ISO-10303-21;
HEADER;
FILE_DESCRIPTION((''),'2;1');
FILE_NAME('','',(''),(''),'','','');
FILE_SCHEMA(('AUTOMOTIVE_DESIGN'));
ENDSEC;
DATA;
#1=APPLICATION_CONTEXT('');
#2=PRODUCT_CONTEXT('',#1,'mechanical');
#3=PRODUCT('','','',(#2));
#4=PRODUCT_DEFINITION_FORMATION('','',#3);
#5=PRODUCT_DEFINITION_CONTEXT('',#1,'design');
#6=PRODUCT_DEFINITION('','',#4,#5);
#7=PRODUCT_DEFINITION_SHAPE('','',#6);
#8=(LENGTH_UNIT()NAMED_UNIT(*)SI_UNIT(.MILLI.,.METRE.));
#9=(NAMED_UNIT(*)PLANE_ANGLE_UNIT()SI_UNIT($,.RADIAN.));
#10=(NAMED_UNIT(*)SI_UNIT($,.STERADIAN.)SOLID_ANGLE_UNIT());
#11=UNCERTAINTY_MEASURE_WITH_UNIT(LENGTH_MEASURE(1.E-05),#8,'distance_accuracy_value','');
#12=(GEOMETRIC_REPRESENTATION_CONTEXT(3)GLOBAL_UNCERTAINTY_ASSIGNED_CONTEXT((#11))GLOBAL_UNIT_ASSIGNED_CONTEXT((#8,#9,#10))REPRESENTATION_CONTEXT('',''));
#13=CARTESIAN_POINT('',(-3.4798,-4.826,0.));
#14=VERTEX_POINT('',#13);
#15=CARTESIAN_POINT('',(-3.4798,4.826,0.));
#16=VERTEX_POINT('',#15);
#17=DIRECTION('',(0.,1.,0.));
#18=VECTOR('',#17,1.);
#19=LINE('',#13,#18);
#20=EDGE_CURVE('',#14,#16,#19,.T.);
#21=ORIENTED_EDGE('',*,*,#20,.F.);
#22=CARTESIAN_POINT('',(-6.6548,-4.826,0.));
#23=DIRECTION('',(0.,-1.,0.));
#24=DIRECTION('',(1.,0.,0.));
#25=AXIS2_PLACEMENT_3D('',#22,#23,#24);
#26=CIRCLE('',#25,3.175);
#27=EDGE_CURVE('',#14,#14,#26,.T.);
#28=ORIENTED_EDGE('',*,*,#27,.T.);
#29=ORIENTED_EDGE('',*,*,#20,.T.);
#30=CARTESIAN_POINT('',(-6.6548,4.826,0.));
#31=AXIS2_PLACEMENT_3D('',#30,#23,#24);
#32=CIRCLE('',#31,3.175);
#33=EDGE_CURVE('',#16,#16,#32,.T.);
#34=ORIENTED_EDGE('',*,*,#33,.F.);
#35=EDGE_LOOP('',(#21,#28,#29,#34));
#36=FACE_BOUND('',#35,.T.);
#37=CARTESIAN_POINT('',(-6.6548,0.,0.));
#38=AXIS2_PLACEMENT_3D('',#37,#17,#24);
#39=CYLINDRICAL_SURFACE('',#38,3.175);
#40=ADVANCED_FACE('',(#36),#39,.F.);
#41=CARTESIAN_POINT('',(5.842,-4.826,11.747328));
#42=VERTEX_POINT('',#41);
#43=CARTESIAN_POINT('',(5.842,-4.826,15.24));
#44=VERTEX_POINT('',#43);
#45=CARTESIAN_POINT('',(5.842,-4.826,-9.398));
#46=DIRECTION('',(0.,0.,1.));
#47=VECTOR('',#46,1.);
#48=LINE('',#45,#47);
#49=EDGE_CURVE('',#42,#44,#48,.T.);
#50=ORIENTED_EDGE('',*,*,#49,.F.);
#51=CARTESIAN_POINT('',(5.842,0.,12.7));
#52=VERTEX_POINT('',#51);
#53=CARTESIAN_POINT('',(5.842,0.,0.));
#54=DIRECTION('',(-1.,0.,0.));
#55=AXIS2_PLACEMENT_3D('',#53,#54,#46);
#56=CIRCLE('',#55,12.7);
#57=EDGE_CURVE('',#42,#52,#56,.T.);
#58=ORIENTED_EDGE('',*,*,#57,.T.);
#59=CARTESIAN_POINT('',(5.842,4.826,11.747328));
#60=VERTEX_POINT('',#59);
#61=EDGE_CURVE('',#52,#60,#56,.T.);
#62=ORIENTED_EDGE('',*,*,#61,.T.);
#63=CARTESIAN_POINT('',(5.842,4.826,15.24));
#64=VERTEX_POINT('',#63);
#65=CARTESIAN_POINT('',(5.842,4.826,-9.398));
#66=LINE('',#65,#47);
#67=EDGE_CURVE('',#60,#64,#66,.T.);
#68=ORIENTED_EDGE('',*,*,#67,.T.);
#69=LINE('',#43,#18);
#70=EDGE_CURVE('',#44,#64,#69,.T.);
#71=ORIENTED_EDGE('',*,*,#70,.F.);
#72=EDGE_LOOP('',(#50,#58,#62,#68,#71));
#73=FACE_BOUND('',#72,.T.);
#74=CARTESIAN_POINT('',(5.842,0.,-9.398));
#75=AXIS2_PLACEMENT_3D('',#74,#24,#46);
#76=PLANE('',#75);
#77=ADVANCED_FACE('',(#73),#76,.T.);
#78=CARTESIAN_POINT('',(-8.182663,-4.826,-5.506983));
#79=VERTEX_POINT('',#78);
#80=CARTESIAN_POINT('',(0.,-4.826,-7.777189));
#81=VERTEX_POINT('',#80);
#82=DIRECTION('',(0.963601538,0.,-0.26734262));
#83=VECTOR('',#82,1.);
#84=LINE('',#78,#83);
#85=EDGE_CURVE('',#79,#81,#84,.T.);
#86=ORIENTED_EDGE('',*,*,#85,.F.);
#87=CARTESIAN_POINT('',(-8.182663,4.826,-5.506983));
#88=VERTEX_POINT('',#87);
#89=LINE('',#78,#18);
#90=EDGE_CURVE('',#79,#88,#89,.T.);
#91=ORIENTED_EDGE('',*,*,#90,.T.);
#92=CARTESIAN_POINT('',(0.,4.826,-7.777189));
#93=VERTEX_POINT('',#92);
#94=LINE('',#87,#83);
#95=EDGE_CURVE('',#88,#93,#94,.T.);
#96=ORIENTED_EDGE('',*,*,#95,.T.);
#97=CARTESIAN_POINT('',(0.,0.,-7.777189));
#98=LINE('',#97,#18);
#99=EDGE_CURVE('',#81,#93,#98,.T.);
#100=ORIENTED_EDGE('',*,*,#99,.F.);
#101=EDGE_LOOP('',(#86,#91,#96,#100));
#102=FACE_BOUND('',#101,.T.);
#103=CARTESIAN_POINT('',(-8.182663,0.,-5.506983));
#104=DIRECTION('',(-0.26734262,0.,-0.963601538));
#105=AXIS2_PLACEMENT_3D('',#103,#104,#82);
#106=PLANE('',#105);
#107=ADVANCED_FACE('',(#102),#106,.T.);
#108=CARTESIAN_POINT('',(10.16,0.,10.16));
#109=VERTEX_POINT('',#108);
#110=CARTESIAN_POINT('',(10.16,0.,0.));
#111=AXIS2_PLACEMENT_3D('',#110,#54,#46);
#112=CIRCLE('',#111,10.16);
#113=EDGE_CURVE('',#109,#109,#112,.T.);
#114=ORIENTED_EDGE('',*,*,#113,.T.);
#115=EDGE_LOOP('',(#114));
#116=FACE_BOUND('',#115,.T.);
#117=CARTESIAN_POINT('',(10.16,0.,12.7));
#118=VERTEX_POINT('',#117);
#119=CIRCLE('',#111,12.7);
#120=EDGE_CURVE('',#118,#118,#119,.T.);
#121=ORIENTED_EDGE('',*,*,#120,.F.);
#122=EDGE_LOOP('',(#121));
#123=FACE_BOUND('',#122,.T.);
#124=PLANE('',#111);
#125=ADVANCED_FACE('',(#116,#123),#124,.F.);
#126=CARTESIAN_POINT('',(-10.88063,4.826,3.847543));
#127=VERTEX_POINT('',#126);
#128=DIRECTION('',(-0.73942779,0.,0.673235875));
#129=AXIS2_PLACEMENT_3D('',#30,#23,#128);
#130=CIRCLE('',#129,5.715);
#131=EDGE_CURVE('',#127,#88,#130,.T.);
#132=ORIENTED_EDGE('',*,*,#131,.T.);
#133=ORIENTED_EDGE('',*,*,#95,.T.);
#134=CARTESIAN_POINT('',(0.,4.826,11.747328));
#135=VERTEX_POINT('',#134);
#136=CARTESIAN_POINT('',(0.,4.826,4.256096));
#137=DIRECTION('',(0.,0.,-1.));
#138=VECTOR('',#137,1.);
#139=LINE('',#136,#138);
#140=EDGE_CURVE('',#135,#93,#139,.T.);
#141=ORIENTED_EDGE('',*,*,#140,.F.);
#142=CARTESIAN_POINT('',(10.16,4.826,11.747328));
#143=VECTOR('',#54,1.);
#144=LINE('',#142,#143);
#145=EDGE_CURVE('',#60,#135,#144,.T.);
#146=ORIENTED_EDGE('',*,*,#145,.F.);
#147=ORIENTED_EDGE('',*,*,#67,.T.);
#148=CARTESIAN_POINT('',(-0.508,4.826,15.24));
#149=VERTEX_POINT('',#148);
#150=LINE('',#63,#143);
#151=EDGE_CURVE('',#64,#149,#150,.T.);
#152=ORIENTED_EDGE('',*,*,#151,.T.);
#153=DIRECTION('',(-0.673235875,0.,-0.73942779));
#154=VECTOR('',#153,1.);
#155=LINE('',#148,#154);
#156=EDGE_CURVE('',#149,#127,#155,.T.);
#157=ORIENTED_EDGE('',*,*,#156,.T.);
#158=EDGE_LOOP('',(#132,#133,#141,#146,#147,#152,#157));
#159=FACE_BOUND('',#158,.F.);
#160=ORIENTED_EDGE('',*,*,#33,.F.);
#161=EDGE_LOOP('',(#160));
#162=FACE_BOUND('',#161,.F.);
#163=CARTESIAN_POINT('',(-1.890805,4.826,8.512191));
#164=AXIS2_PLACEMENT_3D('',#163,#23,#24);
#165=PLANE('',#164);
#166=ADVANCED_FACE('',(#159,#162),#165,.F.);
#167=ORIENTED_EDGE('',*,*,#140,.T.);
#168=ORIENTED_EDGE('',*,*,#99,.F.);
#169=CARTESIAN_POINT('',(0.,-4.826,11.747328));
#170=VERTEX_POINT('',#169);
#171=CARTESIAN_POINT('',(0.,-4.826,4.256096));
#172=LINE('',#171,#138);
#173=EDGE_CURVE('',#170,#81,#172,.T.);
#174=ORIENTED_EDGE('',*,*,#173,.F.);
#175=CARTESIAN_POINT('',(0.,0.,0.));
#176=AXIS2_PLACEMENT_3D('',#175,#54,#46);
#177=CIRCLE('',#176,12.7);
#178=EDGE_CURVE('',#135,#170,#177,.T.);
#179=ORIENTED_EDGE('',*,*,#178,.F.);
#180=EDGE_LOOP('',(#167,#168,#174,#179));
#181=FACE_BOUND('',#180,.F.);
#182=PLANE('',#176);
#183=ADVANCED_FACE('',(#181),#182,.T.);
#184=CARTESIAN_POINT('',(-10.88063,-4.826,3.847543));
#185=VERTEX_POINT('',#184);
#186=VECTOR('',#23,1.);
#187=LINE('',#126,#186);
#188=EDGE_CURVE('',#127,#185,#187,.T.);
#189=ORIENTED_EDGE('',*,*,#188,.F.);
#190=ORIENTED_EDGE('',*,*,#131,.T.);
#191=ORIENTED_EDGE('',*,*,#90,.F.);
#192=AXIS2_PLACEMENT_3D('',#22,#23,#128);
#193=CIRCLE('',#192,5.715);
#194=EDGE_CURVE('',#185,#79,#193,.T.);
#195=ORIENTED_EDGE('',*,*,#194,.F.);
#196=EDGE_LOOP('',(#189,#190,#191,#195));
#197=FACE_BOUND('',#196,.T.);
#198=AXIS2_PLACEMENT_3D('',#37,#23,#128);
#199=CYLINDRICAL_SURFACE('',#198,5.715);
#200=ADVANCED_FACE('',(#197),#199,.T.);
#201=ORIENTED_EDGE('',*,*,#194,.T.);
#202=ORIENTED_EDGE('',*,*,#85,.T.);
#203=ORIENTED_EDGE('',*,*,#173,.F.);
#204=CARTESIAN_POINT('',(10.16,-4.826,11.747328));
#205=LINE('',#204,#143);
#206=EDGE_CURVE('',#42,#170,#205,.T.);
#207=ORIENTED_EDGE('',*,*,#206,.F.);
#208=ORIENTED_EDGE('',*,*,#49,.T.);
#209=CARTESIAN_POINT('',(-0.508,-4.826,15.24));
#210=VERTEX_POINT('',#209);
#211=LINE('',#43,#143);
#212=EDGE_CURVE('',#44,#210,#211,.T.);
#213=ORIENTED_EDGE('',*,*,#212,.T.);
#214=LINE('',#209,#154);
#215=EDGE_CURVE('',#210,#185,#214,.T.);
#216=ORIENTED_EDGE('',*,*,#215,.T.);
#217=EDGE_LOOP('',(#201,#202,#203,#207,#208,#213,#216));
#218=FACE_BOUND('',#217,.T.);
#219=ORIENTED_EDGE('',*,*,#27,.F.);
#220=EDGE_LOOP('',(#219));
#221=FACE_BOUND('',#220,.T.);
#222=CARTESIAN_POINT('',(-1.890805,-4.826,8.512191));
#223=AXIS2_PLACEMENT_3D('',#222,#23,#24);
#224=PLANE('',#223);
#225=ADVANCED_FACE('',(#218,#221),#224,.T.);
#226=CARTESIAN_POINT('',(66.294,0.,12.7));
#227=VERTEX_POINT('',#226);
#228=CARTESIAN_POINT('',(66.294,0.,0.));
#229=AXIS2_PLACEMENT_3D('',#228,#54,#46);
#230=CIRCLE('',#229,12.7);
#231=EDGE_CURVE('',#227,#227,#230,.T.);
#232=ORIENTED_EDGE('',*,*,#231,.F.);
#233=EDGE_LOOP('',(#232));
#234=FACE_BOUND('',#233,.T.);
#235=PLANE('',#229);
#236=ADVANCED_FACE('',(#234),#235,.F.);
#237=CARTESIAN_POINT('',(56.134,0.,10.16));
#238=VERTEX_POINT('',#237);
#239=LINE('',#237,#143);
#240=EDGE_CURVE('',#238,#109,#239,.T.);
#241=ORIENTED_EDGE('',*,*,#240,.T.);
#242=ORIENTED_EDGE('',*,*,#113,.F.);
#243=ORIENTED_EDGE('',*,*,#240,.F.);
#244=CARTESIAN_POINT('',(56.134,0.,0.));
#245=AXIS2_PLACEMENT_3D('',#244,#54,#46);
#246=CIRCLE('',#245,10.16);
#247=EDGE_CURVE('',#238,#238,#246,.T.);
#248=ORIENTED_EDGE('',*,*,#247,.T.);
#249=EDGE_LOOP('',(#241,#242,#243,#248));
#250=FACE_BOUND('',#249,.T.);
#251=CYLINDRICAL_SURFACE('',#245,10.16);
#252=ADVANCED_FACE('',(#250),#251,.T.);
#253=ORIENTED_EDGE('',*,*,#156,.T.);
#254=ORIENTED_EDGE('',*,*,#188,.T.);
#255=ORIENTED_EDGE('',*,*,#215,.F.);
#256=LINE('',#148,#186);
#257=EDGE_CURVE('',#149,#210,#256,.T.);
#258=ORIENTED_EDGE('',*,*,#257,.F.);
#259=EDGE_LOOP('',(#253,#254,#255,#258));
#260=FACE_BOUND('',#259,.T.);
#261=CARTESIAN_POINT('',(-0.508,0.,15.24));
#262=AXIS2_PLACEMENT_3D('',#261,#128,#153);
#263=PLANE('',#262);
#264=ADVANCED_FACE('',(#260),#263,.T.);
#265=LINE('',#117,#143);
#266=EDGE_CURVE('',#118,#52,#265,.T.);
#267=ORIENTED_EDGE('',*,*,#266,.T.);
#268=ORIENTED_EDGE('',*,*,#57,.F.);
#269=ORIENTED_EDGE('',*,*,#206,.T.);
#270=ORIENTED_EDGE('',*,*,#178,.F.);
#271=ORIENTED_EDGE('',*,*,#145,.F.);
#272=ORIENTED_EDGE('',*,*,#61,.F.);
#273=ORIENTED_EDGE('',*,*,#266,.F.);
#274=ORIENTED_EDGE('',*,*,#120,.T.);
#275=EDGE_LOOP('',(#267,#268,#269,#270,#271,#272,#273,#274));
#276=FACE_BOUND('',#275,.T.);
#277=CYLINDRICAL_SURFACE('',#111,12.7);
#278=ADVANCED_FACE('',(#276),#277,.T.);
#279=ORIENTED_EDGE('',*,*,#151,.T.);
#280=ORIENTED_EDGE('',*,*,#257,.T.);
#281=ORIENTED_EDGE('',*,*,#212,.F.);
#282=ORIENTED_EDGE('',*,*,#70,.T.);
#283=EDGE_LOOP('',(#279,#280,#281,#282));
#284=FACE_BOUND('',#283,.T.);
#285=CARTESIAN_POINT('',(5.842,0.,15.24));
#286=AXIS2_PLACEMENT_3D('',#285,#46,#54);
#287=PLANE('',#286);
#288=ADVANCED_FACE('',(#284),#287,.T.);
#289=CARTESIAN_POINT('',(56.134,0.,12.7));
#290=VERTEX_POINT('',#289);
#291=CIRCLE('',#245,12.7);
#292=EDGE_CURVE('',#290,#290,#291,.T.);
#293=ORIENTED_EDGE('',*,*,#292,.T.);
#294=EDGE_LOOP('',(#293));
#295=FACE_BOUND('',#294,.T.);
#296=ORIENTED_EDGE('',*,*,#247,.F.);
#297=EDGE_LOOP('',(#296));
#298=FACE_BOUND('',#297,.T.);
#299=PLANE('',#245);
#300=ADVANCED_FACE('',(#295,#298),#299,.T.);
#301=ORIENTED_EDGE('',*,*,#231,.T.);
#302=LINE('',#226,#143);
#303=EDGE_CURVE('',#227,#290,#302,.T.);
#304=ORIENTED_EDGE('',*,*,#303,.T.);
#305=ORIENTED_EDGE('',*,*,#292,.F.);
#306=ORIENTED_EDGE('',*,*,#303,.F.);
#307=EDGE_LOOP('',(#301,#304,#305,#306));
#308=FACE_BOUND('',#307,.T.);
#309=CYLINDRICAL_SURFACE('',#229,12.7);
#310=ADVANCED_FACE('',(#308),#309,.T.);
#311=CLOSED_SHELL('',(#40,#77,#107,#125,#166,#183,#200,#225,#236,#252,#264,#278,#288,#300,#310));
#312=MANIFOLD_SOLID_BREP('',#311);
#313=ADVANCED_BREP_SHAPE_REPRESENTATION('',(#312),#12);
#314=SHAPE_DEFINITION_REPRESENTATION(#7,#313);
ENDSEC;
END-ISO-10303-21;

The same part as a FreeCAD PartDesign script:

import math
import FreeCAD as App
import Part
import Sketcher
from FreeCAD import Vector
Q = App.Units.Quantity

doc = App.newDocument("Part")
params = doc.addObject("Spreadsheet::Sheet", "Params")
for row, (alias, value) in enumerate([
    ("sketch1_width", "0.4 in"),
    ("sketch1_height", "0.5 in"),
    ("sketch1_height2", "0.1 in"),
    ("sketch1_width2", "1.81 in"),
    ("revolution_angle", "360 deg"),
    ("sketch2_diameter", "0.25 in"),
    ("sketch2_radius", "0.225 in"),
    ("sketch2_width", "0.25 in"),
    ("sketch2_height", "0.97 in"),
    ("pad1_length", "0.38 in"),
], start=1):
    params.set(f"A{row}", alias)
    params.set(f"B{row}", "=" + value)
    params.setAlias(f"B{row}", alias)

body = doc.addObject("PartDesign::Body", "Body")

sketch1 = body.newObject("Sketcher::SketchObject", "Sketch")
sketch1.AttachmentSupport = (doc.getObject("XZ_Plane"), [""])
sketch1.MapMode = "FlatFace"
sketch1.addGeometry([
    Part.LineSegment(Vector(66.3, 0, 0), Vector(66.3, 12.7, 0)),
    Part.LineSegment(Vector(66.3, 12.7, 0), Vector(56.1, 12.7, 0)),
    Part.LineSegment(Vector(56.1, 12.7, 0), Vector(56.1, 10.2, 0)),
    Part.LineSegment(Vector(56.1, 10.2, 0), Vector(10.2, 10.2, 0)),
    Part.LineSegment(Vector(10.2, 10.2, 0), Vector(10.2, 12.7, 0)),
    Part.LineSegment(Vector(10.2, 12.7, 0), Vector(0, 12.7, 0)),
    Part.LineSegment(Vector(0, 12.7, 0), Vector(0, 0, 0)),
    Part.LineSegment(Vector(0, 0, 0), Vector(66.3, 0, 0)),
], False)
sketch1.addConstraint([
    Sketcher.Constraint("Coincident", 0, 2, 1, 1),
    Sketcher.Constraint("Coincident", 1, 2, 2, 1),
    Sketcher.Constraint("Coincident", 2, 2, 3, 1),
    Sketcher.Constraint("Coincident", 3, 2, 4, 1),
    Sketcher.Constraint("Coincident", 4, 2, 5, 1),
    Sketcher.Constraint("Coincident", 5, 2, 6, 1),
    Sketcher.Constraint("Coincident", 6, 2, 7, 1),
    Sketcher.Constraint("Coincident", 7, 2, 0, 1),
    Sketcher.Constraint("Vertical", 0),
    Sketcher.Constraint("Horizontal", 1),
    Sketcher.Constraint("Vertical", 2),
    Sketcher.Constraint("Horizontal", 3),
    Sketcher.Constraint("Vertical", 4),
    Sketcher.Constraint("Horizontal", 5),
    Sketcher.Constraint("Vertical", 6),
    Sketcher.Constraint("Horizontal", 7),
    Sketcher.Constraint("Coincident", 6, 2, -1, 1),
    Sketcher.Constraint("Horizontal", 1, 2, 4, 2),
    Sketcher.Constraint("Equal", 1, 5),
    Sketcher.Constraint("DistanceX", 1, 2, 1, 1, Q("0.4 in")),
    Sketcher.Constraint("DistanceY", 0, 1, 0, 2, Q("0.5 in")),
    Sketcher.Constraint("DistanceY", 2, 2, 2, 1, Q("0.1 in")),
    Sketcher.Constraint("DistanceX", 3, 2, 3, 1, Q("1.81 in")),
])
sketch1.setExpression("Constraints[19]", "Params.sketch1_width")
sketch1.setExpression("Constraints[20]", "Params.sketch1_height")
sketch1.setExpression("Constraints[21]", "Params.sketch1_height2")
sketch1.setExpression("Constraints[22]", "Params.sketch1_width2")
revolution = body.newObject("PartDesign::Revolution", "Revolution")
revolution.Profile = sketch1
revolution.ReferenceAxis = (sketch1, ["H_Axis"])
revolution.setExpression("Angle", "Params.revolution_angle")

sketch2 = body.newObject("Sketcher::SketchObject", "Sketch001")
sketch2.AttachmentSupport = (doc.getObject("XZ_Plane"), [""])
sketch2.MapMode = "FlatFace"
sketch2.addGeometry([
    Part.LineSegment(Vector(5.8, 15.2, 0), Vector(-0.5, 15.2, 0)),
    Part.LineSegment(Vector(-0.5, 15.2, 0), Vector(-10.9, 3.8, 0)),
    Part.ArcOfCircle(Part.Circle(Vector(-6.7, 0, 0), Vector(0, 0, 1), 5.7), math.radians(138), math.radians(254)),
    Part.LineSegment(Vector(-8.2, -5.5, 0), Vector(5.8, -9.4, 0)),
    Part.LineSegment(Vector(5.8, -9.4, 0), Vector(5.8, 15.2, 0)),
    Part.Circle(Vector(-6.7, 0, 0), Vector(0, 0, 1), 3.2),
], False)
sketch2.addConstraint([
    Sketcher.Constraint("Coincident", 0, 2, 1, 1),
    Sketcher.Constraint("Tangent", 1, 2, 2, 1),
    Sketcher.Constraint("Tangent", 2, 2, 3, 1),
    Sketcher.Constraint("Coincident", 3, 2, 4, 1),
    Sketcher.Constraint("Coincident", 4, 2, 0, 1),
    Sketcher.Constraint("Horizontal", 0),
    Sketcher.Constraint("Vertical", 4),
    Sketcher.Constraint("Coincident", 5, 3, 2, 3),
    Sketcher.Constraint("PointOnObject", 2, 3, -1),
    Sketcher.Constraint("Diameter", 5, Q("0.25 in")),
    Sketcher.Constraint("Radius", 2, Q("0.225 in")),
    Sketcher.Constraint("DistanceX", 0, 2, 0, 1, Q("0.25 in")),
    Sketcher.Constraint("DistanceY", 4, 1, 4, 2, Q("0.97 in")),
    Sketcher.Constraint("DistanceY", -1, 1, 0, 2, Q("0.6 in")),
    Sketcher.Constraint("DistanceX", 0, 2, -1, 1, Q("0.02 in")),
    Sketcher.Constraint("DistanceX", 2, 3, -1, 1, Q("0.262 in")),
])
sketch2.setExpression("Constraints[9]", "Params.sketch2_diameter")
sketch2.setExpression("Constraints[10]", "Params.sketch2_radius")
sketch2.setExpression("Constraints[11]", "Params.sketch2_width")
sketch2.setExpression("Constraints[12]", "Params.sketch2_height")
pad1 = body.newObject("PartDesign::Pad", "Pad")
pad1.Profile = sketch2
pad1.setExpression("Length", "Params.pad1_length")
pad1.Midplane = True

doc.recompute()
